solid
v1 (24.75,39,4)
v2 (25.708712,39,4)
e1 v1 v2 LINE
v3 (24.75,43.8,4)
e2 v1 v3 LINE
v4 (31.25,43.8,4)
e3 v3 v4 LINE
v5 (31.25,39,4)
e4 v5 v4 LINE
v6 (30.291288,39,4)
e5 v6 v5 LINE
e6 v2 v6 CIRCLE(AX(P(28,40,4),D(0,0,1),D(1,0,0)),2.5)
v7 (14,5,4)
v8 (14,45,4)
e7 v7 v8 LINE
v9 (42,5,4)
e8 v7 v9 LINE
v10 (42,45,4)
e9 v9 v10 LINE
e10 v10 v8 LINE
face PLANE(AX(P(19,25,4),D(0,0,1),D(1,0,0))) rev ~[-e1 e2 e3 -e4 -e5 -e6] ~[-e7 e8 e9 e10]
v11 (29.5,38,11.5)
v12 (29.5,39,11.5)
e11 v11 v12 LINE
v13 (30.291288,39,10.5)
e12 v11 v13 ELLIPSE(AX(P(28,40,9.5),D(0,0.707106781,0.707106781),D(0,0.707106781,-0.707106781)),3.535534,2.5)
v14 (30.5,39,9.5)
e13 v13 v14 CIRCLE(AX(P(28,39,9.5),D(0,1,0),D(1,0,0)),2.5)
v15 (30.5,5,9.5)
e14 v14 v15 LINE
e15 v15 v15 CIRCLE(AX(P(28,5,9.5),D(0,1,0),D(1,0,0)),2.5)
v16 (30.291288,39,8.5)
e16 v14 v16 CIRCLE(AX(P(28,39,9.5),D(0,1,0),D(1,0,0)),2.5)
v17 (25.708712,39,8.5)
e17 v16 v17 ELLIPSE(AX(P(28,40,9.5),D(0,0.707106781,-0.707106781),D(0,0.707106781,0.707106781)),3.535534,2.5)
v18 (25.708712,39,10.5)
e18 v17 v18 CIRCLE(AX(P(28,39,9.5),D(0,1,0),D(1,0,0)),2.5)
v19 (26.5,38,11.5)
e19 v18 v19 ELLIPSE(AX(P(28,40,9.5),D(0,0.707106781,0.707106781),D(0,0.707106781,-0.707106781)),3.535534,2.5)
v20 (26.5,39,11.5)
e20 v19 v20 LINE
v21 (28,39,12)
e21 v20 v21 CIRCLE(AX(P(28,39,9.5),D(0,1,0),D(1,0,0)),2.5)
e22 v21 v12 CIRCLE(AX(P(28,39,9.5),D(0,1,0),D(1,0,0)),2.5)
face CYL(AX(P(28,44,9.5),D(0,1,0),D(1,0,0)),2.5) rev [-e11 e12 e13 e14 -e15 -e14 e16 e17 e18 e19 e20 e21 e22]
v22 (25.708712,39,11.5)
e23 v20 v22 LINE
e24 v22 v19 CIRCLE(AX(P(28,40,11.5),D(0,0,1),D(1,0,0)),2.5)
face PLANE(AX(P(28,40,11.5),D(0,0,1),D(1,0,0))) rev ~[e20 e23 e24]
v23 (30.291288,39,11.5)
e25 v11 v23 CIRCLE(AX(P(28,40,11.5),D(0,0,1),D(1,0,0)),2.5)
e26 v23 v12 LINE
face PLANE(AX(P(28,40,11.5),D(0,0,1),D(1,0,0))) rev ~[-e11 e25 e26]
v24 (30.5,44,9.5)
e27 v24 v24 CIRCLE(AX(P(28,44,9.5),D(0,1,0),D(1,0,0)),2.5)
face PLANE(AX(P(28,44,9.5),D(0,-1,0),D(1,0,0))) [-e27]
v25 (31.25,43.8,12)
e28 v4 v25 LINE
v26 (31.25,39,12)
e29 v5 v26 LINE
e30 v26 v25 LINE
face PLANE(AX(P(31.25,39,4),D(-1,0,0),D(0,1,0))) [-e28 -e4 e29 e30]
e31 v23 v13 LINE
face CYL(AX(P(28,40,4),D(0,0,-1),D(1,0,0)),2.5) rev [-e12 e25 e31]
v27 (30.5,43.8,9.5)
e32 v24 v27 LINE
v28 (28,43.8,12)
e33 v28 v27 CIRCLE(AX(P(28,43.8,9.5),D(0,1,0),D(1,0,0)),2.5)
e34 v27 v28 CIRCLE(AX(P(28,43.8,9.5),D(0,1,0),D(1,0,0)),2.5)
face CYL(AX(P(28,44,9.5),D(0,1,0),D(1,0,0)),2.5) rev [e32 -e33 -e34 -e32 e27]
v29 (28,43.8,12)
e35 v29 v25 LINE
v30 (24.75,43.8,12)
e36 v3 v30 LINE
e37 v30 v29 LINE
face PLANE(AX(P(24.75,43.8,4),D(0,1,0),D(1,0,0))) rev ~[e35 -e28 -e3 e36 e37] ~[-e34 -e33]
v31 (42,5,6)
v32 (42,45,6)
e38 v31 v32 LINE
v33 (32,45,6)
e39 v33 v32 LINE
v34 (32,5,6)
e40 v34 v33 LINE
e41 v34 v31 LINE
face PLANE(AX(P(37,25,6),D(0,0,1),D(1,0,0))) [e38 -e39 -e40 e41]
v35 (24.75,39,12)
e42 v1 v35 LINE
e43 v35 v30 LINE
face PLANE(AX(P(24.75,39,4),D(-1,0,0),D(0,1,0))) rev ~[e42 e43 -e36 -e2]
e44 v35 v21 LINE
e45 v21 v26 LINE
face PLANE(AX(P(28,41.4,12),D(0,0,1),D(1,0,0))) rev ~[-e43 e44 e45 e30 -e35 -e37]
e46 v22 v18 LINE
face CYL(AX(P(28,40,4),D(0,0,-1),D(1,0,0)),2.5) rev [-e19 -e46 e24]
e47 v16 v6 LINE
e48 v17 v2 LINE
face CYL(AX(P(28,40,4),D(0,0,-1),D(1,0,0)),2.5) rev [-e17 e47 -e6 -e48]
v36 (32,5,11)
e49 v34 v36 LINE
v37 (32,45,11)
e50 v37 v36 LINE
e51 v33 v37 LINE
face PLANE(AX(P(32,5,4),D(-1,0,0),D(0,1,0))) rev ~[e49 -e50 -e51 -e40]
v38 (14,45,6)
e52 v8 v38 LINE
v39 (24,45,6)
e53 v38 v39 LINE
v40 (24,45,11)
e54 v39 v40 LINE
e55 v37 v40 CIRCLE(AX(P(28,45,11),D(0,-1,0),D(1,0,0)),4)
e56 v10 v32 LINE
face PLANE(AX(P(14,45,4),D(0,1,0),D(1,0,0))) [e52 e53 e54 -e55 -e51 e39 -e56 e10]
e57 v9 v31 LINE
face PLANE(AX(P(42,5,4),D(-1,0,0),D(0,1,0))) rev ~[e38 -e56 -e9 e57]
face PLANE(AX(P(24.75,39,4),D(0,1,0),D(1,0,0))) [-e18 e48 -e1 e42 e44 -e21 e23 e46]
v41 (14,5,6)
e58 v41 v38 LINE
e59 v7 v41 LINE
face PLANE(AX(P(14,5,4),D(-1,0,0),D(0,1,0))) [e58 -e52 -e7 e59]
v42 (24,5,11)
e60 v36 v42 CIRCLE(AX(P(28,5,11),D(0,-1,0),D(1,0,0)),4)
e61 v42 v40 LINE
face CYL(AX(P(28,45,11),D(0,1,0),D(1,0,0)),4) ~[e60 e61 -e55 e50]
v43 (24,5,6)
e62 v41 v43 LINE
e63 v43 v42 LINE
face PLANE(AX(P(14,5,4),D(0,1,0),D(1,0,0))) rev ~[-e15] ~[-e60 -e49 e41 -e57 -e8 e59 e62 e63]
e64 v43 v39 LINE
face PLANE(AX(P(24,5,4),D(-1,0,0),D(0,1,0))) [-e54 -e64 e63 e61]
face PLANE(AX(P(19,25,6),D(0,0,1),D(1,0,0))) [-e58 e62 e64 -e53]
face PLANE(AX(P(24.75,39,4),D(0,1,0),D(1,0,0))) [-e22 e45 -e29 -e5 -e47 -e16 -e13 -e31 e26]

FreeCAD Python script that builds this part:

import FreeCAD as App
import Part
import Sketcher

doc = App.newDocument("Part")
body = doc.addObject("PartDesign::Body", "Body")

# Sketch on XY plane
sketch1 = body.newObject("Sketcher::SketchObject", "Sketch")
sketch1.AttachmentSupport = (doc.getObject("XY_Plane"), [""])
sketch1.MapMode = "FlatFace"
sketch1.addGeometry(Part.LineSegment(App.Vector(-0.2, 4.8, 0), App.Vector(-0.2, 0, 0)), False)
sketch1.addGeometry(Part.LineSegment(App.Vector(-0.2, 0, 0), App.Vector(6.2, 0, 0)), False)
sketch1.addGeometry(Part.LineSegment(App.Vector(6.2, 0, 0), App.Vector(6.2, 4.8, 0)), False)
sketch1.addGeometry(Part.LineSegment(App.Vector(6.2, 4.8, 0), App.Vector(-0.2, 4.8, 0)), False)
sketch1.addConstraint(Sketcher.Constraint("Coincident", 0, 2, 1, 1))
sketch1.addConstraint(Sketcher.Constraint("Coincident", 1, 2, 2, 1))
sketch1.addConstraint(Sketcher.Constraint("Coincident", 2, 2, 3, 1))
sketch1.addConstraint(Sketcher.Constraint("Coincident", 3, 2, 0, 1))
sketch1.addConstraint(Sketcher.Constraint("Vertical", 0))
sketch1.addConstraint(Sketcher.Constraint("Horizontal", 1))
sketch1.addConstraint(Sketcher.Constraint("Vertical", 2))
sketch1.addConstraint(Sketcher.Constraint("Horizontal", 3))
sketch1.addConstraint(Sketcher.Constraint("PointOnObject", 0, 2, -1))
sketch1.addConstraint(Sketcher.Constraint("DistanceX", 1, 1, 1, 2, 6.5))
sketch1.addConstraint(Sketcher.Constraint("DistanceY", 0, 2, 0, 1, 4.8))
sketch1.addConstraint(Sketcher.Constraint("DistanceX", 0, 2, -1, 1, 0.25))
pad1 = body.newObject("PartDesign::Pad", "Pad")
pad1.Profile = sketch1
pad1.Length = 8
body2 = doc.addObject("PartDesign::Body", "Body001")

# Sketch on XY plane
sketch2 = body2.newObject("Sketcher::SketchObject", "Sketch001")
sketch2.AttachmentSupport = (doc.getObject("XY_Plane001"), [""])
sketch2.MapMode = "FlatFace"
sketch2.addGeometry(Part.Circle(App.Vector(3, 1, 0), App.Vector(0, 0, 1), 2.5), False)
sketch2.addConstraint(Sketcher.Constraint("Diameter", 0, 5.0))
sketch2.addConstraint(Sketcher.Constraint("DistanceX", -1, 1, 0, 3, 3.0))
sketch2.addConstraint(Sketcher.Constraint("DistanceY", -1, 1, 0, 3, 1.0))
pad2 = body2.newObject("PartDesign::Pad", "Pad001")
pad2.Profile = sketch2
pad2.Length = 7.5
doc.recompute()

boolean = body2.newObject("PartDesign::Boolean", "Boolean")
boolean.Type = "Fuse"
boolean.addObjects([body])
body3 = doc.addObject("PartDesign::Body", "Body002")
doc.recompute()

body2.Placement = App.Placement(App.Vector(25, 39, 4), App.Rotation(App.Vector(0, 0, 1), 0))
boolean2 = body3.newObject("PartDesign::Boolean", "Boolean001")
boolean2.Type = "Fuse"
boolean2.addObjects([body2])
body4 = doc.addObject("PartDesign::Body", "Body003")

# Sketch on XY plane
sketch3 = body4.newObject("Sketcher::SketchObject", "Sketch002")
sketch3.AttachmentSupport = (doc.getObject("XY_Plane003"), [""])
sketch3.MapMode = "FlatFace"
sketch3.addGeometry(Part.Circle(App.Vector(0, 0, 0), App.Vector(0, 0, 1), 4), False)
sketch3.addConstraint(Sketcher.Constraint("Coincident", 0, 3, -1, 1))
sketch3.addConstraint(Sketcher.Constraint("Diameter", 0, 8.0))
pad3 = body4.newObject("PartDesign::Pad", "Pad002")
pad3.Profile = sketch3
pad3.Length = 40
body5 = doc.addObject("PartDesign::Body", "Body004")
doc.recompute()

body4.Placement = App.Placement(App.Vector(0, 0, 0), App.Rotation(App.Vector(1, 0, 0), 90))
boolean3 = body5.newObject("PartDesign::Boolean", "Boolean002")
boolean3.Type = "Fuse"
boolean3.addObjects([body4])
body6 = doc.addObject("PartDesign::Body", "Body005")
doc.recompute()

body5.Placement = App.Placement(App.Vector(28, 45, 11), App.Rotation(App.Vector(0, 0, 1), 0))
boolean4 = body6.newObject("PartDesign::Boolean", "Boolean003")
boolean4.Type = "Fuse"
boolean4.addObjects([body5])
body7 = doc.addObject("PartDesign::Body", "Body006")

# Sketch on XY plane
sketch4 = body7.newObject("Sketcher::SketchObject", "Sketch003")
sketch4.AttachmentSupport = (doc.getObject("XY_Plane006"), [""])
sketch4.MapMode = "FlatFace"
sketch4.AttachmentOffset = App.Placement(App.Vector(0, 0, 4), App.Rotation())
sketch4.addGeometry(Part.LineSegment(App.Vector(24, 45, 0), App.Vector(24, 5, 0)), False)
sketch4.addGeometry(Part.LineSegment(App.Vector(24, 5, 0), App.Vector(32, 5, 0)), False)
sketch4.addGeometry(Part.LineSegment(App.Vector(32, 5, 0), App.Vector(32, 45, 0)), False)
sketch4.addGeometry(Part.LineSegment(App.Vector(32, 45, 0), App.Vector(24, 45, 0)), False)
sketch4.addConstraint(Sketcher.Constraint("Coincident", 0, 2, 1, 1))
sketch4.addConstraint(Sketcher.Constraint("Coincident", 1, 2, 2, 1))
sketch4.addConstraint(Sketcher.Constraint("Coincident", 2, 2, 3, 1))
sketch4.addConstraint(Sketcher.Constraint("Coincident", 3, 2, 0, 1))
sketch4.addConstraint(Sketcher.Constraint("Vertical", 0))
sketch4.addConstraint(Sketcher.Constraint("Horizontal", 1))
sketch4.addConstraint(Sketcher.Constraint("Vertical", 2))
sketch4.addConstraint(Sketcher.Constraint("Horizontal", 3))
sketch4.addConstraint(Sketcher.Constraint("DistanceX", 1, 1, 1, 2, 8.0))
sketch4.addConstraint(Sketcher.Constraint("DistanceY", 0, 2, 0, 1, 40.0))
sketch4.addConstraint(Sketcher.Constraint("DistanceX", -1, 1, 0, 2, 24.0))
sketch4.addConstraint(Sketcher.Constraint("DistanceY", -1, 1, 0, 2, 5.0))
pad4 = body7.newObject("PartDesign::Pad", "Pad003")
pad4.Profile = sketch4
pad4.Length = 7
doc.recompute()

boolean5 = body7.newObject("PartDesign::Boolean", "Boolean004")
boolean5.Type = "Cut"
boolean5.addObjects([body6])
body8 = doc.addObject("PartDesign::Body", "Body007")

# Sketch on XY plane
sketch5 = body8.newObject("Sketcher::SketchObject", "Sketch004")
sketch5.AttachmentSupport = (doc.getObject("XY_Plane007"), [""])
sketch5.MapMode = "FlatFace"
sketch5.addGeometry(Part.Circle(App.Vector(0, 0, 0), App.Vector(0, 0, 1), 2.5), False)
sketch5.addConstraint(Sketcher.Constraint("Coincident", 0, 3, -1, 1))
sketch5.addConstraint(Sketcher.Constraint("Diameter", 0, 5.0))
pad5 = body8.newObject("PartDesign::Pad", "Pad004")
pad5.Profile = sketch5
pad5.Length = 39
body9 = doc.addObject("PartDesign::Body", "Body008")
doc.recompute()

body8.Placement = App.Placement(App.Vector(0, 0, 0), App.Rotation(App.Vector(1, 0, 0), 90))
boolean6 = body9.newObject("PartDesign::Boolean", "Boolean005")
boolean6.Type = "Fuse"
boolean6.addObjects([body8])
body10 = doc.addObject("PartDesign::Body", "Body009")
doc.recompute()

body9.Placement = App.Placement(App.Vector(28, 44, 9.5), App.Rotation(App.Vector(0, 0, 1), 0))
boolean7 = body10.newObject("PartDesign::Boolean", "Boolean006")
boolean7.Type = "Fuse"
boolean7.addObjects([body9])
body11 = doc.addObject("PartDesign::Body", "Body010")

# Sketch on XY plane
sketch6 = body11.newObject("Sketcher::SketchObject", "Sketch005")
sketch6.AttachmentSupport = (doc.getObject("XY_Plane010"), [""])
sketch6.MapMode = "FlatFace"
sketch6.addGeometry(Part.Circle(App.Vector(0, 0, 0), App.Vector(0, 0, 1), 4), False)
sketch6.addConstraint(Sketcher.Constraint("Coincident", 0, 3, -1, 1))
sketch6.addConstraint(Sketcher.Constraint("Diameter", 0, 8.0))
pad6 = body11.newObject("PartDesign::Pad", "Pad005")
pad6.Profile = sketch6
pad6.Length = 40
body12 = doc.addObject("PartDesign::Body", "Body011")
doc.recompute()

body11.Placement = App.Placement(App.Vector(0, 0, 0), App.Rotation(App.Vector(1, 0, 0), 90))
boolean8 = body12.newObject("PartDesign::Boolean", "Boolean007")
boolean8.Type = "Fuse"
boolean8.addObjects([body11])
body13 = doc.addObject("PartDesign::Body", "Body012")
doc.recompute()

body12.Placement = App.Placement(App.Vector(28, 45, 11), App.Rotation(App.Vector(0, 0, 1), 0))
boolean9 = body13.newObject("PartDesign::Boolean", "Boolean008")
boolean9.Type = "Fuse"
boolean9.addObjects([body12])
doc.recompute()

boolean10 = body13.newObject("PartDesign::Boolean", "Boolean009")
boolean10.Type = "Cut"
boolean10.addObjects([body10])
doc.recompute()

boolean11 = body13.newObject("PartDesign::Boolean", "Boolean010")
boolean11.Type = "Fuse"
boolean11.addObjects([body7])
doc.recompute()

boolean12 = body13.newObject("PartDesign::Boolean", "Boolean011")
boolean12.Type = "Cut"
boolean12.addObjects([body3])
body14 = doc.addObject("PartDesign::Body", "Body013")

# Sketch on XY plane
sketch7 = body14.newObject("Sketcher::SketchObject", "Sketch006")
sketch7.AttachmentSupport = (doc.getObject("XY_Plane013"), [""])
sketch7.MapMode = "FlatFace"
sketch7.AttachmentOffset = App.Placement(App.Vector(0, 0, 4), App.Rotation())
sketch7.addGeometry(Part.LineSegment(App.Vector(14, 45, 0), App.Vector(14, 5, 0)), False)
sketch7.addGeometry(Part.LineSegment(App.Vector(14, 5, 0), App.Vector(24, 5, 0)), False)
sketch7.addGeometry(Part.LineSegment(App.Vector(24, 5, 0), App.Vector(24, 45, 0)), False)
sketch7.addGeometry(Part.LineSegment(App.Vector(24, 45, 0), App.Vector(14, 45, 0)), False)
sketch7.addConstraint(Sketcher.Constraint("Coincident", 0, 2, 1, 1))
sketch7.addConstraint(Sketcher.Constraint("Coincident", 1, 2, 2, 1))
sketch7.addConstraint(Sketcher.Constraint("Coincident", 2, 2, 3, 1))
sketch7.addConstraint(Sketcher.Constraint("Coincident", 3, 2, 0, 1))
sketch7.addConstraint(Sketcher.Constraint("Vertical", 0))
sketch7.addConstraint(Sketcher.Constraint("Horizontal", 1))
sketch7.addConstraint(Sketcher.Constraint("Vertical", 2))
sketch7.addConstraint(Sketcher.Constraint("Horizontal", 3))
sketch7.addConstraint(Sketcher.Constraint("DistanceX", 1, 1, 1, 2, 10.0))
sketch7.addConstraint(Sketcher.Constraint("DistanceY", 0, 2, 0, 1, 40.0))
sketch7.addConstraint(Sketcher.Constraint("DistanceX", -1, 1, 0, 2, 14.0))
sketch7.addConstraint(Sketcher.Constraint("DistanceY", -1, 1, 0, 2, 5.0))
pad7 = body14.newObject("PartDesign::Pad", "Pad006")
pad7.Profile = sketch7
pad7.Length = 2
body15 = doc.addObject("PartDesign::Body", "Body014")

# Sketch on XY plane
sketch8 = body15.newObject("Sketcher::SketchObject", "Sketch007")
sketch8.AttachmentSupport = (doc.getObject("XY_Plane014"), [""])
sketch8.MapMode = "FlatFace"
sketch8.AttachmentOffset = App.Placement(App.Vector(0, 0, 4), App.Rotation())
sketch8.addGeometry(Part.LineSegment(App.Vector(32, 45, 0), App.Vector(32, 5, 0)), False)
sketch8.addGeometry(Part.LineSegment(App.Vector(32, 5, 0), App.Vector(42, 5, 0)), False)
sketch8.addGeometry(Part.LineSegment(App.Vector(42, 5, 0), App.Vector(42, 45, 0)), False)
sketch8.addGeometry(Part.LineSegment(App.Vector(42, 45, 0), App.Vector(32, 45, 0)), False)
sketch8.addConstraint(Sketcher.Constraint("Coincident", 0, 2, 1, 1))
sketch8.addConstraint(Sketcher.Constraint("Coincident", 1, 2, 2, 1))
sketch8.addConstraint(Sketcher.Constraint("Coincident", 2, 2, 3, 1))
sketch8.addConstraint(Sketcher.Constraint("Coincident", 3, 2, 0, 1))
sketch8.addConstraint(Sketcher.Constraint("Vertical", 0))
sketch8.addConstraint(Sketcher.Constraint("Horizontal", 1))
sketch8.addConstraint(Sketcher.Constraint("Vertical", 2))
sketch8.addConstraint(Sketcher.Constraint("Horizontal", 3))
sketch8.addConstraint(Sketcher.Constraint("DistanceX", 1, 1, 1, 2, 10.0))
sketch8.addConstraint(Sketcher.Constraint("DistanceY", 0, 2, 0, 1, 40.0))
sketch8.addConstraint(Sketcher.Constraint("DistanceX", -1, 1, 0, 2, 32.0))
sketch8.addConstraint(Sketcher.Constraint("DistanceY", -1, 1, 0, 2, 5.0))
pad8 = body15.newObject("PartDesign::Pad", "Pad007")
pad8.Profile = sketch8
pad8.Length = 2
doc.recompute()

boolean13 = body15.newObject("PartDesign::Boolean", "Boolean012")
boolean13.Type = "Fuse"
boolean13.addObjects([body13])
doc.recompute()

boolean14 = body15.newObject("PartDesign::Boolean", "Boolean013")
boolean14.Type = "Fuse"
boolean14.addObjects([body14])

doc.recompute()
